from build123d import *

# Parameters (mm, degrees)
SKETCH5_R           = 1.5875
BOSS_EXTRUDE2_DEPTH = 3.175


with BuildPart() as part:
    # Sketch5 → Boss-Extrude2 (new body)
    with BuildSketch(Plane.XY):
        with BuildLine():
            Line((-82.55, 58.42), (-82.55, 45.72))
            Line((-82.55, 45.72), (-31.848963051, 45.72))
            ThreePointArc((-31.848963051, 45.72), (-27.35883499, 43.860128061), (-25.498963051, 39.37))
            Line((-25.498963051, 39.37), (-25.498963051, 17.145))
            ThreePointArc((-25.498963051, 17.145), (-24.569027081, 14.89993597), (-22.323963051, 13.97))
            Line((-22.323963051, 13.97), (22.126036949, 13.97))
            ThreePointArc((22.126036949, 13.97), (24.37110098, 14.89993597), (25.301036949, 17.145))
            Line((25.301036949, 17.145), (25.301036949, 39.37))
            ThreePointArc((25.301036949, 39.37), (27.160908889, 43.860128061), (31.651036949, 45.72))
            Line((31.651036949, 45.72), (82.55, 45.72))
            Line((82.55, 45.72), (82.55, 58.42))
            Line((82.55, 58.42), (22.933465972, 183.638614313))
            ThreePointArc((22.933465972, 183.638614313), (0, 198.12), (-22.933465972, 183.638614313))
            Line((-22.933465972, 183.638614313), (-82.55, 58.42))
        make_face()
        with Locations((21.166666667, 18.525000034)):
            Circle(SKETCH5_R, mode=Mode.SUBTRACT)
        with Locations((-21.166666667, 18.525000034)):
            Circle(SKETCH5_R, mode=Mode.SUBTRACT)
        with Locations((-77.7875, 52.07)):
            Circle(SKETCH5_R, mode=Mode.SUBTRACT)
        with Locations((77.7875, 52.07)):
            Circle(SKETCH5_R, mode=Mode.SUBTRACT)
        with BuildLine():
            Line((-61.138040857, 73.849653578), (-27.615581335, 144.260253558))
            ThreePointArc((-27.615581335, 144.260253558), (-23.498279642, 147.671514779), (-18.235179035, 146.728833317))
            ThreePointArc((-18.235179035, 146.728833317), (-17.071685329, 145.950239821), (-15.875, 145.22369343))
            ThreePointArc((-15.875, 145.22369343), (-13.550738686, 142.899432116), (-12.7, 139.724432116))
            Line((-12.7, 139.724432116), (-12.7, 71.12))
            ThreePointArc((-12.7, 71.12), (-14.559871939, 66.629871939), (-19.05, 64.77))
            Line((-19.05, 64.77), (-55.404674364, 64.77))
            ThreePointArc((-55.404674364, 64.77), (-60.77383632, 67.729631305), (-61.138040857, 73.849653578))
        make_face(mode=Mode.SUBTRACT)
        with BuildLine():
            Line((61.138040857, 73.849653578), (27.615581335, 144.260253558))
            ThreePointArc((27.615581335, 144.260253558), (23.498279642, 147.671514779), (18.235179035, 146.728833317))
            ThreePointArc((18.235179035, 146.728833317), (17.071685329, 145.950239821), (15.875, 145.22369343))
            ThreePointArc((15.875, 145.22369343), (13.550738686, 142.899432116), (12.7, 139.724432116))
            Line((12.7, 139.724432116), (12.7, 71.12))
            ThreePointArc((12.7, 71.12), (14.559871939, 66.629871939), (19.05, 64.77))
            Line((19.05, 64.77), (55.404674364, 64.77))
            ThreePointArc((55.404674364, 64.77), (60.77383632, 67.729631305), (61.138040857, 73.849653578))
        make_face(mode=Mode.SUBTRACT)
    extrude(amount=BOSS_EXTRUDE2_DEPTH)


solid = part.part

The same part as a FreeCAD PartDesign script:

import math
import FreeCAD as App
import Part
import Sketcher

V = App.Vector
Q = App.Units.Quantity

doc = App.newDocument("Part")
body = doc.addObject("PartDesign::Body", "Body")

sketch1 = body.newObject("Sketcher::SketchObject", "Sketch")
sketch1.AttachmentSupport = (doc.getObject("XY_Plane"), [""])
sketch1.MapMode = "FlatFace"
sketch1.addGeometry([
    Part.LineSegment(V(-82.5, 58.4, 0), V(-82.5, 45.7, 0)),
    Part.LineSegment(V(-82.5, 45.7, 0), V(-31.8, 45.7, 0)),
    Part.ArcOfCircle(Part.Circle(V(-31.8, 39.4, 0), V(0, 0, 1), 6.3), math.radians(0), math.radians(90)),
    Part.LineSegment(V(-25.5, 39.4, 0), V(-25.5, 17.1, 0)),
    Part.ArcOfCircle(Part.Circle(V(-22.3, 17.1, 0), V(0, 0, 1), 3.2), math.radians(-180), math.radians(-90)),
    Part.LineSegment(V(-22.3, 14, 0), V(22.1, 14, 0)),
    Part.ArcOfCircle(Part.Circle(V(22.1, 17.1, 0), V(0, 0, 1), 3.2), math.radians(-90), math.radians(0)),
    Part.LineSegment(V(25.3, 17.1, 0), V(25.3, 39.4, 0)),
    Part.ArcOfCircle(Part.Circle(V(31.7, 39.4, 0), V(0, 0, 1), 6.3), math.radians(90), math.radians(180)),
    Part.LineSegment(V(31.7, 45.7, 0), V(82.5, 45.7, 0)),
    Part.LineSegment(V(82.5, 45.7, 0), V(82.5, 58.4, 0)),
    Part.LineSegment(V(82.5, 58.4, 0), V(22.9, 183.6, 0)),
    Part.ArcOfCircle(Part.Circle(V(0, 172.7, 0), V(0, 0, 1), 25.4), math.radians(25), math.radians(155)),
    Part.LineSegment(V(-22.9, 183.6, 0), V(-82.5, 58.4, 0)),
    Part.Circle(V(-21.2, 18.5, 0), V(0, 0, 1), 1.6),
    Part.Circle(V(-77.8, 52.1, 0), V(0, 0, 1), 1.6),
    Part.Circle(V(21.2, 18.5, 0), V(0, 0, 1), 1.6),
    Part.Circle(V(77.8, 52.1, 0), V(0, 0, 1), 1.6),
    Part.ArcOfCircle(Part.Circle(V(-55.4, 71.1, 0), V(0, 0, 1), 6.3), math.radians(155), math.radians(270)),
    Part.LineSegment(V(-61.1, 73.8, 0), V(-27.6, 144.3, 0)),
    Part.ArcOfCircle(Part.Circle(V(-21.9, 141.5, 0), V(0, 0, 1), 6.3), math.radians(55), math.radians(155)),
    Part.ArcOfCircle(Part.Circle(V(0, 172.7, 0), V(0, 0, 1), 31.7), math.radians(-125.05), math.radians(-120)),
    Part.ArcOfCircle(Part.Circle(V(-19.1, 139.7, 0), V(0, 0, 1), 6.3), math.radians(0), math.radians(60)),
    Part.LineSegment(V(-12.7, 139.7, 0), V(-12.7, 71.1, 0)),
    Part.ArcOfCircle(Part.Circle(V(-19, 71.1, 0), V(0, 0, 1), 6.3), math.radians(-90), math.radians(0)),
    Part.LineSegment(V(-19.1, 64.8, 0), V(-55.4, 64.8, 0)),
    Part.LineSegment(V(27.6, 144.3, 0), V(61.1, 73.8, 0)),
    Part.ArcOfCircle(Part.Circle(V(55.4, 71.1, 0), V(0, 0, 1), 6.3), math.radians(-90), math.radians(25)),
    Part.LineSegment(V(55.4, 64.8, 0), V(19.1, 64.8, 0)),
    Part.ArcOfCircle(Part.Circle(V(19, 71.1, 0), V(0, 0, 1), 6.3), math.radians(180), math.radians(270)),
    Part.LineSegment(V(12.7, 71.1, 0), V(12.7, 139.7, 0)),
    Part.ArcOfCircle(Part.Circle(V(19.1, 139.7, 0), V(0, 0, 1), 6.3), math.radians(120), math.radians(180)),
    Part.ArcOfCircle(Part.Circle(V(0, 172.7, 0), V(0, 0, 1), 31.7), math.radians(-60), math.radians(-54.95)),
    Part.ArcOfCircle(Part.Circle(V(21.9, 141.5, 0), V(0, 0, 1), 6.3), math.radians(25), math.radians(125)),
], False)
sketch1.addConstraint([
    Sketcher.Constraint("Coincident", 0, 2, 1, 1),
    Sketcher.Constraint("Tangent", 1, 2, 2, 2),
    Sketcher.Constraint("Tangent", 2, 1, 3, 1),
    Sketcher.Constraint("Tangent", 3, 2, 4, 1),
    Sketcher.Constraint("Tangent", 4, 2, 5, 1),
    Sketcher.Constraint("Tangent", 5, 2, 6, 1),
    Sketcher.Constraint("Tangent", 6, 2, 7, 1),
    Sketcher.Constraint("Tangent", 7, 2, 8, 2),
    Sketcher.Constraint("Tangent", 8, 1, 9, 1),
    Sketcher.Constraint("Coincident", 9, 2, 10, 1),
    Sketcher.Constraint("Coincident", 10, 2, 11, 1),
    Sketcher.Constraint("Tangent", 11, 2, 12, 1),
    Sketcher.Constraint("Tangent", 12, 2, 13, 1),
    Sketcher.Constraint("Coincident", 13, 2, 0, 1),
    Sketcher.Constraint("Tangent", 18, 1, 19, 1),
    Sketcher.Constraint("Tangent", 19, 2, 20, 2),
    Sketcher.Constraint("Tangent", 20, 1, 21, 1),
    Sketcher.Constraint("Tangent", 21, 2, 22, 2),
    Sketcher.Constraint("Tangent", 22, 1, 23, 1),
    Sketcher.Constraint("Tangent", 23, 2, 24, 2),
    Sketcher.Constraint("Tangent", 24, 1, 25, 1),
    Sketcher.Constraint("Tangent", 25, 2, 18, 2),
    Sketcher.Constraint("Tangent", 26, 2, 27, 2),
    Sketcher.Constraint("Tangent", 27, 1, 28, 1),
    Sketcher.Constraint("Tangent", 28, 2, 29, 2),
    Sketcher.Constraint("Tangent", 29, 1, 30, 1),
    Sketcher.Constraint("Tangent", 30, 2, 31, 2),
    Sketcher.Constraint("Tangent", 31, 1, 32, 1),
    Sketcher.Constraint("Tangent", 32, 2, 33, 2),
    Sketcher.Constraint("Tangent", 33, 1, 26, 1),
    Sketcher.Constraint("Vertical", 0),
    Sketcher.Constraint("Horizontal", 1),
    Sketcher.Constraint("Vertical", 3),
    Sketcher.Constraint("Horizontal", 5),
    Sketcher.Constraint("Vertical", 7),
    Sketcher.Constraint("Horizontal", 9),
    Sketcher.Constraint("Vertical", 10),
    Sketcher.Constraint("Vertical", 23),
    Sketcher.Constraint("Horizontal", 25),
    Sketcher.Constraint("Horizontal", 28),
    Sketcher.Constraint("Vertical", 30),
    Sketcher.Constraint("Coincident", 21, 3, 12, 3),
    Sketcher.Constraint("Coincident", 32, 3, 12, 3),
    Sketcher.Constraint("Equal", 4, 6),
    Sketcher.Constraint("Equal", 2, 8),
    Sketcher.Constraint("Equal", 14, 15),
    Sketcher.Constraint("Equal", 15, 16),
    Sketcher.Constraint("Equal", 16, 17),
    Sketcher.Constraint("Equal", 8, 18),
    Sketcher.Constraint("Equal", 18, 20),
    Sketcher.Constraint("Equal", 20, 22),
    Sketcher.Constraint("Equal", 22, 24),
    Sketcher.Constraint("Equal", 24, 27),
    Sketcher.Constraint("Equal", 27, 29),
    Sketcher.Constraint("Equal", 29, 31),
    Sketcher.Constraint("Equal", 21, 32),
    Sketcher.Constraint("Equal", 31, 33),
    Sketcher.Constraint("Symmetric", 14, 3, 16, 3, -2),
    Sketcher.Constraint("Symmetric", 15, 3, 17, 3, -2),
    Sketcher.Constraint("Symmetric", 18, 3, 27, 3, -2),
    Sketcher.Constraint("Symmetric", 22, 3, 31, 3, -2),
    Sketcher.Constraint("Symmetric", 0, 2, 9, 2, -2),
    Sketcher.Constraint("Parallel", 13, 19),
    Sketcher.Constraint("Parallel", 11, 26),
    Sketcher.Constraint("Horizontal", 20, 3, 33, 3),
    Sketcher.Constraint("Radius", 12, Q("1 in")),
    Sketcher.Constraint("Radius", 2, Q("0.25 in")),
    Sketcher.Constraint("Radius", 21, Q("1.25 in")),
    Sketcher.Constraint("Diameter", 14, Q("0.125 in")),
    Sketcher.Constraint("DistanceY", 0, 2, 0, 1, Q("0.5 in")),
    Sketcher.Constraint("Radius", 4, Q("0.125 in")),
    Sketcher.Constraint("DistanceY", 18, 3, 21, 3, Q("4 in")),
    Sketcher.Constraint("DistanceY", 0, 2, 18, 3, Q("1 in")),
    Sketcher.Constraint("DistanceY", 4, 2, 2, 1, Q("1 in")),
    Sketcher.Constraint("DistanceX", 23, 2, 29, 1, Q("1 in")),
    Sketcher.Constraint("DistanceX", 5, 1, 5, 2, Q("1.75 in")),
    Sketcher.Constraint("DistanceY", -1, 1, 12, 3, Q("6.8 in")),
    Sketcher.Constraint("DistanceY", 2, 3, 15, 3, Q("0.5 in")),
    Sketcher.Constraint("DistanceX", 0, 2, -1, 1, Q("3.25 in")),
    Sketcher.Constraint("DistanceX", 15, 3, -1, 1, Q("3.0625 in")),
    Sketcher.Constraint("DistanceY", -1, 1, 14, 3, 18.525),
    Sketcher.Constraint("DistanceY", -1, 1, 20, 3, 141.5306),
    Sketcher.Constraint("DistanceX", 1, 1, 1, 2, 50.701037),
    Sketcher.Constraint("DistanceX", 16, 3, 6, 3, 0.95937),
])
pad1 = body.newObject("PartDesign::Pad", "Pad")
pad1.Profile = sketch1
pad1.Length = Q("0.125 in")

doc.recompute()
